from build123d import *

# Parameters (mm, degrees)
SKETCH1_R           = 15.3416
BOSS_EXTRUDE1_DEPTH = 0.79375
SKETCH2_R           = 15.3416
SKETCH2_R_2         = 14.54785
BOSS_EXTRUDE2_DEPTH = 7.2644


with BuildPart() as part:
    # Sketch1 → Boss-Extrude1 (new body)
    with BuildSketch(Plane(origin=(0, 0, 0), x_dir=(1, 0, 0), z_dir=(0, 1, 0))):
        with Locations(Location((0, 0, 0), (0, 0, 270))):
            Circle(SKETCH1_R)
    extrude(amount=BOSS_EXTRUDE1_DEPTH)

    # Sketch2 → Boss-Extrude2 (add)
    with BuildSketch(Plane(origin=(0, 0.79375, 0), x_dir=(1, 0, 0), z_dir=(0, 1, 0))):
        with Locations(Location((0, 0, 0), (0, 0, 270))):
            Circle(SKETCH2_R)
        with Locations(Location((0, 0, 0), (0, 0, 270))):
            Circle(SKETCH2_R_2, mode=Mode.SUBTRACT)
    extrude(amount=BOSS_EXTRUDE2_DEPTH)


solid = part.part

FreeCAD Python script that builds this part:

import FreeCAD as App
import Part
import Sketcher
Q = App.Units.Quantity

doc = App.newDocument("Part")
body = doc.addObject("PartDesign::Body", "Body")

sketch1 = body.newObject("Sketcher::SketchObject", "Sketch")
sketch1.AttachmentSupport = (doc.getObject("XZ_Plane"), [""])
sketch1.MapMode = "FlatFace"
sketch1.addGeometry(Part.Circle(App.Vector(0, 0, 0), App.Vector(0, 0, 1), 15.3416), False)
sketch1.addConstraint(Sketcher.Constraint("Coincident", 0, 3, -1, 1))
sketch1.addConstraint(Sketcher.Constraint("Diameter", 0, Q("1.208 in")))
pad1 = body.newObject("PartDesign::Pad", "Pad")
pad1.Profile = sketch1
pad1.Length = Q("0.03125 in")
pad1.Reversed = True

sketch2 = body.newObject("Sketcher::SketchObject", "Sketch001")
sketch2.AttachmentSupport = (doc.getObject("XZ_Plane"), [""])
sketch2.MapMode = "FlatFace"
sketch2.AttachmentOffset = App.Placement(App.Vector(0, 0, -0.03125 * 25.4), App.Rotation())
sketch2.addGeometry(Part.Circle(App.Vector(0, 0, 0), App.Vector(0, 0, 1), 15.3416), False)
sketch2.addGeometry(Part.Circle(App.Vector(0, 0, 0), App.Vector(0, 0, 1), 14.54785), False)
sketch2.addConstraint(Sketcher.Constraint("Coincident", 0, 3, -1, 1))
sketch2.addConstraint(Sketcher.Constraint("Coincident", 1, 3, -1, 1))
sketch2.addConstraint(Sketcher.Constraint("Diameter", 0, Q("1.208 in")))
sketch2.addConstraint(Sketcher.Constraint("Diameter", 1, Q("1.1455 in")))
pad2 = body.newObject("PartDesign::Pad", "Pad001")
pad2.Profile = sketch2
pad2.Length = Q("0.286 in")
pad2.Reversed = True

doc.recompute()
